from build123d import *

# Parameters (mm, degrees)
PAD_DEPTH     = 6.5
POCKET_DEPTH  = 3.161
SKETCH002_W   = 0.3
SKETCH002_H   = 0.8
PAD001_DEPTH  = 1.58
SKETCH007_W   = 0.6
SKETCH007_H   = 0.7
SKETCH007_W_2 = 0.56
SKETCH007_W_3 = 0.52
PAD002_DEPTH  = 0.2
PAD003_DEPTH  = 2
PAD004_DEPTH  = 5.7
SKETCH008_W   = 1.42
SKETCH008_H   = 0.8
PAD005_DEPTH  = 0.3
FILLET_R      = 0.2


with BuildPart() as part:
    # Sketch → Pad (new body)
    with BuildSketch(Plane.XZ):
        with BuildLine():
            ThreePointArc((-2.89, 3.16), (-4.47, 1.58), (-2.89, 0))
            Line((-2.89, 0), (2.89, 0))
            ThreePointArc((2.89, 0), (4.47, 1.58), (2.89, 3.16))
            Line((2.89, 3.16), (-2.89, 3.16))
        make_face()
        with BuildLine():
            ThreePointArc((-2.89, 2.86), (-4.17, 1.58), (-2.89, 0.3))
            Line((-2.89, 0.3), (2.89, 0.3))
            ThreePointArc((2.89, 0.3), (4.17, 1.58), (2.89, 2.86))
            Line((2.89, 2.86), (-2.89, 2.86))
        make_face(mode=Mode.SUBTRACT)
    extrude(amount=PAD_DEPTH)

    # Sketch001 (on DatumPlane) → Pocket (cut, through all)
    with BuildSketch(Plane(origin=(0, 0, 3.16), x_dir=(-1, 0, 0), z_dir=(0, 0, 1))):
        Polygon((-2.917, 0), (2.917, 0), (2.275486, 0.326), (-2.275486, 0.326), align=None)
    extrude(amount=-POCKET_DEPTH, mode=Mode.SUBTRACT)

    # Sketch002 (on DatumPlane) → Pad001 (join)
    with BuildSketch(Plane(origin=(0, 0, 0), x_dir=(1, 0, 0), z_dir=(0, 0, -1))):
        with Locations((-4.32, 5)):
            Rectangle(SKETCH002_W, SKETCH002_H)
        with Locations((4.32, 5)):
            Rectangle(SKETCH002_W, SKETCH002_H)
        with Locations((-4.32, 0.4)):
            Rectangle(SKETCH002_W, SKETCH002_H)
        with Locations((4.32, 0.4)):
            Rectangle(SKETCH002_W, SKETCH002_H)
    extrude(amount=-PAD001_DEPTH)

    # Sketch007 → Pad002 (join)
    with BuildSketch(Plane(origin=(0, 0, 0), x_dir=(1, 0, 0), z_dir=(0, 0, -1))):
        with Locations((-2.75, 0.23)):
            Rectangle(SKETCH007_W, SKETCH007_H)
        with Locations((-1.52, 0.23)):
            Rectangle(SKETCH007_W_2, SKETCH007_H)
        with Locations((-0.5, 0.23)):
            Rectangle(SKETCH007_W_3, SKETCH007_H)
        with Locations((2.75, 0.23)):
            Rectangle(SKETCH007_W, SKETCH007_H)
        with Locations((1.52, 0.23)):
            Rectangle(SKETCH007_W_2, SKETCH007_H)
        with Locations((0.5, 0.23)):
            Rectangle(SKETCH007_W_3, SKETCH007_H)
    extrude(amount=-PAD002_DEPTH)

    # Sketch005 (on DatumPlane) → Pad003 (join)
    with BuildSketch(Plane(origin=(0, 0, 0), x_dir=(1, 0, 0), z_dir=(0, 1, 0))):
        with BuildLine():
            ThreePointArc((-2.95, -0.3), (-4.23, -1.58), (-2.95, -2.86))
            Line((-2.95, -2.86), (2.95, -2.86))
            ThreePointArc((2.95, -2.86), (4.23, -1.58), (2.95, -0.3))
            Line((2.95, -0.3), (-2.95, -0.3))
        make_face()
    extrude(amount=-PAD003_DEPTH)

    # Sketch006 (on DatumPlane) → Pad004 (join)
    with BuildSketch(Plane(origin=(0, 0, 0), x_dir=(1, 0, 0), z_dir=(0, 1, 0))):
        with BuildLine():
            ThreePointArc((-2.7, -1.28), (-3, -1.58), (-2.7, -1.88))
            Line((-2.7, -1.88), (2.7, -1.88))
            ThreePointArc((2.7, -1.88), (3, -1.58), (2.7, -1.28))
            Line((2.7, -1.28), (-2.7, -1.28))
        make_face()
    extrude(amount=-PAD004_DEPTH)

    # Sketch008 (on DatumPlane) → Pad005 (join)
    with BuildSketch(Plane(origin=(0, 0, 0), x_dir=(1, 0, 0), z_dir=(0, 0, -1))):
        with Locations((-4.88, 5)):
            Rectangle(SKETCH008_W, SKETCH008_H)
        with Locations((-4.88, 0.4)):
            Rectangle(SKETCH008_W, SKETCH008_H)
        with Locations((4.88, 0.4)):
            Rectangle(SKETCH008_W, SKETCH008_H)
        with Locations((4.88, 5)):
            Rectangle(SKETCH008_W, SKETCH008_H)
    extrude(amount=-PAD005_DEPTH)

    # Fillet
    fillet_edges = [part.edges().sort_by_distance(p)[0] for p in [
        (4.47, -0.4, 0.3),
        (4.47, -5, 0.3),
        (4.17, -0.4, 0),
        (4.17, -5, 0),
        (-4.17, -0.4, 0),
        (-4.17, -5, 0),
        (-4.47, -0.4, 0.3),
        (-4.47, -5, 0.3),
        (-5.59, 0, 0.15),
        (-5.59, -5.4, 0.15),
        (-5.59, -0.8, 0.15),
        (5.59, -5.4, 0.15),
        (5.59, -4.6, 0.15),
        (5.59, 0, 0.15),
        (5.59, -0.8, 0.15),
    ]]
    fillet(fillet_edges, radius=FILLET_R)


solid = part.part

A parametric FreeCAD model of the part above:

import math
import FreeCAD as App
import Part
import Sketcher
from FreeCAD import Vector


def edges_at(feature, points):
    """Names of the edges that pass closest to the given points."""
    edges = feature.Shape.Edges
    near = lambda p: min(range(len(edges)), key=lambda i: edges[i].distToShape(Part.Vertex(*p))[0])
    return sorted({f"Edge{near(p) + 1}" for p in points})


def add_polygon(sketch, points):
    """Adds a closed chain of lines whose ends are joined by coincident constraints."""
    first, n = sketch.GeometryCount, len(points)
    for a, b in zip(points, points[1:] + points[:1]):
        sketch.addGeometry(Part.LineSegment(App.Vector(*a, 0), App.Vector(*b, 0)), False)
    for i in range(n):
        sketch.addConstraint(Sketcher.Constraint("Coincident", first + i, 2, first + (i + 1) % n, 1))

doc = App.newDocument("Part")
body = doc.addObject("PartDesign::Body", "Body")

# Sketch on XZ plane
sketch1 = doc.addObject("Sketcher::SketchObject", "Sketch")
body.addObject(sketch1)
sketch1.AttachmentSupport = (doc.XZ_Plane, [""])
sketch1.MapMode = "FlatFace"
sketch1.addGeometry([
    Part.ArcOfCircle(Part.Circle(Vector(-2.9, 1.6, 0), Vector(0, 0, 1), 1.6), math.radians(90), math.radians(270)),  # 0
    Part.LineSegment(Vector(-2.9, 0, 0), Vector(2.9, 0, 0)),  # 1
    Part.ArcOfCircle(Part.Circle(Vector(2.9, 1.6, 0), Vector(0, 0, 1), 1.6), math.radians(-90), math.radians(90)),  # 2
    Part.LineSegment(Vector(2.9, 3.2, 0), Vector(-2.9, 3.2, 0)),  # 3
    Part.ArcOfCircle(Part.Circle(Vector(-2.9, 1.6, 0), Vector(0, 0, 1), 1.3), math.radians(90), math.radians(270)),  # 4
    Part.LineSegment(Vector(-2.9, 2.9, 0), Vector(2.9, 2.9, 0)),  # 5
    Part.ArcOfCircle(Part.Circle(Vector(2.9, 1.6, 0), Vector(0, 0, 1), 1.3), math.radians(-90), math.radians(90)),  # 6
    Part.LineSegment(Vector(2.9, 0.3, 0), Vector(-2.9, 0.3, 0)),  # 7
], False)
sketch1.addConstraint([
    Sketcher.Constraint("Tangent", 0, 2, 1, 1),
    Sketcher.Constraint("Tangent", 1, 2, 2, 1),
    Sketcher.Constraint("Tangent", 2, 2, 3, 1),
    Sketcher.Constraint("Tangent", 3, 2, 0, 1),
    Sketcher.Constraint("Tangent", 4, 1, 5, 1),
    Sketcher.Constraint("Tangent", 5, 2, 6, 2),
    Sketcher.Constraint("Tangent", 6, 1, 7, 1),
    Sketcher.Constraint("Tangent", 7, 2, 4, 2),
    Sketcher.Constraint("Horizontal", 1),
    Sketcher.Constraint("Horizontal", 3),
    Sketcher.Constraint("Horizontal", 5),
    Sketcher.Constraint("Horizontal", 7),
    Sketcher.Constraint("Coincident", 4, 3, 0, 3),
    Sketcher.Constraint("Symmetric", 0, 2, 1, 2, -1, 1),
    Sketcher.Constraint("Vertical", 6, 3, 1, 2),
    Sketcher.Constraint("Radius", 0, 1.58),
    Sketcher.Constraint("Radius", 4, 1.28),
    Sketcher.Constraint("DistanceX", 1, 1, 1, 2, 5.78),
])
pad1 = doc.addObject("PartDesign::Pad", "Pad")
body.addObject(pad1)
pad1.Profile = sketch1
pad1.Length = 6.5

# Sketch on XY plane
sketch2 = doc.addObject("Sketcher::SketchObject", "Sketch001")
body.addObject(sketch2)
sketch2.AttachmentSupport = (doc.XY_Plane, [""])
sketch2.MapMode = "FlatFace"
sketch2.AttachmentOffset = App.Placement(Vector(0, 0, 3.16), App.Rotation())
add_polygon(sketch2, [(2.9, 0), (-2.9, 0), (-2.3, -0.3), (2.3, -0.3)])  # lines 0-3
sketch2.addConstraint([
    Sketcher.Constraint("Horizontal", 0),
    Sketcher.Constraint("Horizontal", 2),
    Sketcher.Constraint("Symmetric", 0, 2, 3, 2, -1, 1),
    Sketcher.Constraint("Equal", 1, 3),
    Sketcher.Constraint("DistanceX", 0, 2, 0, 1, 5.834),
    Sketcher.Constraint("DistanceY", 1, 2, -1, 1, 0.326),
    Sketcher.Constraint("DistanceX", 2, 1, 2, 2, 4.550972),
])
pocket1 = doc.addObject("PartDesign::Pocket", "Pocket")
body.addObject(pocket1)
pocket1.Profile = sketch2
pocket1.Type = "ThroughAll"

# Sketch on XY plane
sketch3 = doc.addObject("Sketcher::SketchObject", "Sketch002")
body.addObject(sketch3)
sketch3.AttachmentSupport = (doc.XY_Plane, [""])
sketch3.MapMode = "FlatFace"
add_polygon(sketch3, [(-4.47, -5.4), (-4.47, -4.6), (-4.17, -4.6), (-4.17, -5.4)])  # lines 0-3
add_polygon(sketch3, [(4.17, -5.4), (4.17, -4.6), (4.47, -4.6), (4.47, -5.4)])  # lines 4-7
add_polygon(sketch3, [(-4.47, -0.8), (-4.47, 0), (-4.17, 0), (-4.17, -0.8)])  # lines 8-11
add_polygon(sketch3, [(4.17, -0.8), (4.17, 0), (4.47, 0), (4.47, -0.8)])  # lines 12-15
sketch3.addConstraint([
    Sketcher.Constraint("Vertical", 0),
    Sketcher.Constraint("Horizontal", 1),
    Sketcher.Constraint("Vertical", 2),
    Sketcher.Constraint("Horizontal", 3),
    Sketcher.Constraint("Vertical", 4),
    Sketcher.Constraint("Horizontal", 5),
    Sketcher.Constraint("Vertical", 6),
    Sketcher.Constraint("Horizontal", 7),
    Sketcher.Constraint("Vertical", 8),
    Sketcher.Constraint("Horizontal", 9),
    Sketcher.Constraint("Vertical", 10),
    Sketcher.Constraint("Horizontal", 11),
    Sketcher.Constraint("Vertical", 12),
    Sketcher.Constraint("Horizontal", 13),
    Sketcher.Constraint("Vertical", 14),
    Sketcher.Constraint("Horizontal", 15),
    Sketcher.Constraint("Symmetric", 9, 2, 12, 2, -1, 1),
    Sketcher.Constraint("Symmetric", 1, 2, 4, 2, -2),
    Sketcher.Constraint("Symmetric", 3, 2, 6, 2, -2),
    Sketcher.Constraint("Symmetric", 8, 2, 13, 2, -2),
    Sketcher.Constraint("Horizontal", 11, 2, 14, 2),
    Sketcher.Constraint("Vertical", 3, 2, 8, 2),
    Sketcher.Constraint("Vertical", 2, 2, 9, 2),
    Sketcher.Constraint("Equal", 6, 8),
    Sketcher.Constraint("DistanceX", 1, 1, 1, 2, 0.3),
    Sketcher.Constraint("DistanceY", 0, 1, 0, 2, 0.8),
    Sketcher.Constraint("DistanceY", 0, 2, -1, 1, 4.6),
    Sketcher.Constraint("DistanceX", 0, 2, -1, 1, 4.47),
])
pad2 = doc.addObject("PartDesign::Pad", "Pad001")
body.addObject(pad2)
pad2.Profile = sketch3
pad2.Length = 1.58

# Sketch on XY plane
sketch4 = doc.addObject("Sketcher::SketchObject", "Sketch003")
body.addObject(sketch4)
sketch4.AttachmentSupport = (doc.XY_Plane, [""])
sketch4.MapMode = "FlatFace"
add_polygon(sketch4, [(-3, -0.6), (-3, 0.1), (-2.5, 0.1), (-2.5, -0.6)])  # lines 0-3
add_polygon(sketch4, [(-1.8, -0.6), (-1.8, 0.1), (-1.2, 0.1), (-1.2, -0.6)])  # lines 4-7
add_polygon(sketch4, [(-0.8, -0.6), (-0.8, 0.1), (-0.2, 0.1), (-0.2, -0.6)])  # lines 8-11
add_polygon(sketch4, [(2.5, -0.6), (2.5, 0.1), (3, 0.1), (3, -0.6)])  # lines 12-15
add_polygon(sketch4, [(1.2, -0.6), (1.2, 0.1), (1.8, 0.1), (1.8, -0.6)])  # lines 16-19
add_polygon(sketch4, [(0.2, -0.6), (0.2, 0.1), (0.8, 0.1), (0.8, -0.6)])  # lines 20-23
sketch4.addConstraint([
    Sketcher.Constraint("Vertical", 0),
    Sketcher.Constraint("Horizontal", 1),
    Sketcher.Constraint("Vertical", 2),
    Sketcher.Constraint("Horizontal", 3),
    Sketcher.Constraint("Vertical", 4),
    Sketcher.Constraint("Horizontal", 5),
    Sketcher.Constraint("Vertical", 6),
    Sketcher.Constraint("Horizontal", 7),
    Sketcher.Constraint("Vertical", 8),
    Sketcher.Constraint("Horizontal", 9),
    Sketcher.Constraint("Vertical", 10),
    Sketcher.Constraint("Horizontal", 11),
    Sketcher.Constraint("Vertical", 12),
    Sketcher.Constraint("Horizontal", 13),
    Sketcher.Constraint("Vertical", 14),
    Sketcher.Constraint("Horizontal", 15),
    Sketcher.Constraint("Vertical", 16),
    Sketcher.Constraint("Horizontal", 17),
    Sketcher.Constraint("Vertical", 18),
    Sketcher.Constraint("Horizontal", 19),
    Sketcher.Constraint("Vertical", 20),
    Sketcher.Constraint("Horizontal", 21),
    Sketcher.Constraint("Vertical", 22),
    Sketcher.Constraint("Horizontal", 23),
    Sketcher.Constraint("Symmetric", 1, 2, 12, 2, -2),
    Sketcher.Constraint("Symmetric", 3, 2, 14, 2, -2),
    Sketcher.Constraint("Symmetric", 5, 2, 16, 2, -2),
    Sketcher.Constraint("Symmetric", 7, 2, 18, 2, -2),
    Sketcher.Constraint("Symmetric", 9, 2, 20, 2, -2),
    Sketcher.Constraint("Symmetric", 11, 2, 22, 2, -2),
    Sketcher.Constraint("Horizontal", 1, 2, 4, 2),
    Sketcher.Constraint("Horizontal", 3, 2, 6, 2),
    Sketcher.Constraint("Horizontal", 5, 2, 8, 2),
    Sketcher.Constraint("Horizontal", 7, 2, 10, 2),
    Sketcher.Constraint("DistanceX", 1, 1, 1, 2, 0.6),
    Sketcher.Constraint("DistanceY", 0, 1, 0, 2, 0.7),
    Sketcher.Constraint("DistanceX", 5, 2, 9, 2, 1.0),
    Sketcher.Constraint("DistanceX", 8, 2, 20, 2, 1.0),
    Sketcher.Constraint("DistanceX", 5, 1, 5, 2, 0.56),
    Sketcher.Constraint("DistanceX", 9, 1, 9, 2, 0.52),
    Sketcher.Constraint("DistanceX", 0, 2, -1, 1, 3.05),
    Sketcher.Constraint("DistanceY", -1, 1, 0, 2, 0.12),
])
pad3 = doc.addObject("PartDesign::Pad", "Pad002")
body.addObject(pad3)
pad3.Profile = sketch4
pad3.Length = 0.2

# Sketch on XZ plane
sketch5 = doc.addObject("Sketcher::SketchObject", "Sketch004")
body.addObject(sketch5)
sketch5.AttachmentSupport = (doc.XZ_Plane, [""])
sketch5.MapMode = "FlatFace"
sketch5.addGeometry([
    Part.ArcOfCircle(Part.Circle(Vector(-3, 1.6, 0), Vector(0, 0, 1), 1.3), math.radians(90), math.radians(270)),
    Part.LineSegment(Vector(-3, 2.9, 0), Vector(3, 2.9, 0)),
    Part.ArcOfCircle(Part.Circle(Vector(3, 1.6, 0), Vector(0, 0, 1), 1.3), math.radians(-90), math.radians(90)),
    Part.LineSegment(Vector(3, 0.3, 0), Vector(-3, 0.3, 0)),
], False)
sketch5.addConstraint([
    Sketcher.Constraint("Tangent", 0, 1, 1, 1),
    Sketcher.Constraint("Tangent", 1, 2, 2, 2),
    Sketcher.Constraint("Tangent", 2, 1, 3, 1),
    Sketcher.Constraint("Tangent", 3, 2, 0, 2),
    Sketcher.Constraint("Horizontal", 1),
    Sketcher.Constraint("Horizontal", 3),
    Sketcher.Constraint("Radius", 0, 1.28),
    Sketcher.Constraint("DistanceX", 1, 1, 1, 2, 5.9),
    Sketcher.Constraint("DistanceY", -1, 1, 2, 1, 0.3),
    Sketcher.Constraint("DistanceX", 0, 3, -1, 1, 2.95),
])
pad4 = doc.addObject("PartDesign::Pad", "Pad003")
body.addObject(pad4)
pad4.Profile = sketch5
pad4.Length = 2

# Sketch on XZ plane
sketch6 = doc.addObject("Sketcher::SketchObject", "Sketch005")
body.addObject(sketch6)
sketch6.AttachmentSupport = (doc.XZ_Plane, [""])
sketch6.MapMode = "FlatFace"
sketch6.addGeometry([
    Part.ArcOfCircle(Part.Circle(Vector(-2.7, 1.58, 0), Vector(0, 0, 1), 0.3), math.radians(90), math.radians(270)),
    Part.LineSegment(Vector(-2.7, 1.88, 0), Vector(2.7, 1.88, 0)),
    Part.ArcOfCircle(Part.Circle(Vector(2.7, 1.58, 0), Vector(0, 0, 1), 0.3), math.radians(-90), math.radians(90)),
    Part.LineSegment(Vector(2.7, 1.28, 0), Vector(-2.7, 1.28, 0)),
], False)
sketch6.addConstraint([
    Sketcher.Constraint("Tangent", 0, 1, 1, 1),
    Sketcher.Constraint("Tangent", 1, 2, 2, 2),
    Sketcher.Constraint("Tangent", 2, 1, 3, 1),
    Sketcher.Constraint("Tangent", 3, 2, 0, 2),
    Sketcher.Constraint("Horizontal", 1),
    Sketcher.Constraint("Horizontal", 3),
    Sketcher.Constraint("Radius", 0, 0.3),
    Sketcher.Constraint("DistanceX", 1, 1, 1, 2, 5.4),
    Sketcher.Constraint("DistanceX", 0, 3, -1, 1, 2.7),
    Sketcher.Constraint("DistanceY", -1, 1, 0, 3, 1.58),
])
pad5 = doc.addObject("PartDesign::Pad", "Pad004")
body.addObject(pad5)
pad5.Profile = sketch6
pad5.Length = 5.7

# Sketch on XY plane
sketch7 = doc.addObject("Sketcher::SketchObject", "Sketch006")
body.addObject(sketch7)
sketch7.AttachmentSupport = (doc.XY_Plane, [""])
sketch7.MapMode = "FlatFace"
add_polygon(sketch7, [(-5.6, -5.4), (-5.6, -4.6), (-4.2, -4.6), (-4.2, -5.4)])  # lines 0-3
add_polygon(sketch7, [(-5.6, -0.8), (-5.6, 0), (-4.2, 0), (-4.2, -0.8)])  # lines 4-7
add_polygon(sketch7, [(4.2, -0.8), (4.2, 0), (5.6, 0), (5.6, -0.8)])  # lines 8-11
add_polygon(sketch7, [(4.2, -5.4), (4.2, -4.6), (5.6, -4.6), (5.6, -5.4)])  # lines 12-15
sketch7.addConstraint([
    Sketcher.Constraint("Vertical", 0),
    Sketcher.Constraint("Horizontal", 1),
    Sketcher.Constraint("Vertical", 2),
    Sketcher.Constraint("Horizontal", 3),
    Sketcher.Constraint("Vertical", 4),
    Sketcher.Constraint("Horizontal", 5),
    Sketcher.Constraint("Vertical", 6),
    Sketcher.Constraint("Horizontal", 7),
    Sketcher.Constraint("Vertical", 8),
    Sketcher.Constraint("Horizontal", 9),
    Sketcher.Constraint("Vertical", 10),
    Sketcher.Constraint("Horizontal", 11),
    Sketcher.Constraint("Vertical", 12),
    Sketcher.Constraint("Horizontal", 13),
    Sketcher.Constraint("Vertical", 14),
    Sketcher.Constraint("Horizontal", 15),
    Sketcher.Constraint("Symmetric", 5, 2, 8, 2, -1, 1),
    Sketcher.Constraint("Symmetric", 4, 2, 9, 2, -2),
    Sketcher.Constraint("Symmetric", 1, 2, 12, 2, -2),
    Sketcher.Constraint("Symmetric", 3, 2, 14, 2, -2),
    Sketcher.Constraint("Horizontal", 7, 2, 10, 2),
    Sketcher.Constraint("Vertical", 3, 2, 4, 2),
    Sketcher.Constraint("Vertical", 2, 2, 5, 2),
    Sketcher.Constraint("Equal", 2, 4),
    Sketcher.Constraint("DistanceY", 0, 1, 0, 2, 0.8),
    Sketcher.Constraint("DistanceX", 1, 1, 1, 2, 1.42),
    Sketcher.Constraint("DistanceY", 0, 2, -1, 1, 4.6),
    Sketcher.Constraint("DistanceX", 0, 2, -1, 1, 5.59),
])
pad6 = doc.addObject("PartDesign::Pad", "Pad005")
body.addObject(pad6)
pad6.Profile = sketch7
pad6.Length = 0.3
doc.recompute()

fillet = doc.addObject("PartDesign::Fillet", "Fillet")
body.addObject(fillet)
fillet.Base = (pad6, edges_at(pad6, [
    (4.47, -0.4, 0.3),
    (4.47, -5, 0.3),
    (4.17, -0.4, 0),
    (4.17, -5, 0),
    (-4.17, -0.4, 0),
    (-4.17, -5, 0),
    (-4.47, -0.4, 0.3),
    (-4.47, -5, 0.3),
    (-5.59, 0, 0.15),
    (-5.59, -5.4, 0.15),
    (-5.59, -0.8, 0.15),
    (5.59, -5.4, 0.15),
    (5.59, -4.6, 0.15),
    (5.59, 0, 0.15),
    (5.59, -0.8, 0.15),
]))
fillet.Radius = 0.2

doc.recompute()
